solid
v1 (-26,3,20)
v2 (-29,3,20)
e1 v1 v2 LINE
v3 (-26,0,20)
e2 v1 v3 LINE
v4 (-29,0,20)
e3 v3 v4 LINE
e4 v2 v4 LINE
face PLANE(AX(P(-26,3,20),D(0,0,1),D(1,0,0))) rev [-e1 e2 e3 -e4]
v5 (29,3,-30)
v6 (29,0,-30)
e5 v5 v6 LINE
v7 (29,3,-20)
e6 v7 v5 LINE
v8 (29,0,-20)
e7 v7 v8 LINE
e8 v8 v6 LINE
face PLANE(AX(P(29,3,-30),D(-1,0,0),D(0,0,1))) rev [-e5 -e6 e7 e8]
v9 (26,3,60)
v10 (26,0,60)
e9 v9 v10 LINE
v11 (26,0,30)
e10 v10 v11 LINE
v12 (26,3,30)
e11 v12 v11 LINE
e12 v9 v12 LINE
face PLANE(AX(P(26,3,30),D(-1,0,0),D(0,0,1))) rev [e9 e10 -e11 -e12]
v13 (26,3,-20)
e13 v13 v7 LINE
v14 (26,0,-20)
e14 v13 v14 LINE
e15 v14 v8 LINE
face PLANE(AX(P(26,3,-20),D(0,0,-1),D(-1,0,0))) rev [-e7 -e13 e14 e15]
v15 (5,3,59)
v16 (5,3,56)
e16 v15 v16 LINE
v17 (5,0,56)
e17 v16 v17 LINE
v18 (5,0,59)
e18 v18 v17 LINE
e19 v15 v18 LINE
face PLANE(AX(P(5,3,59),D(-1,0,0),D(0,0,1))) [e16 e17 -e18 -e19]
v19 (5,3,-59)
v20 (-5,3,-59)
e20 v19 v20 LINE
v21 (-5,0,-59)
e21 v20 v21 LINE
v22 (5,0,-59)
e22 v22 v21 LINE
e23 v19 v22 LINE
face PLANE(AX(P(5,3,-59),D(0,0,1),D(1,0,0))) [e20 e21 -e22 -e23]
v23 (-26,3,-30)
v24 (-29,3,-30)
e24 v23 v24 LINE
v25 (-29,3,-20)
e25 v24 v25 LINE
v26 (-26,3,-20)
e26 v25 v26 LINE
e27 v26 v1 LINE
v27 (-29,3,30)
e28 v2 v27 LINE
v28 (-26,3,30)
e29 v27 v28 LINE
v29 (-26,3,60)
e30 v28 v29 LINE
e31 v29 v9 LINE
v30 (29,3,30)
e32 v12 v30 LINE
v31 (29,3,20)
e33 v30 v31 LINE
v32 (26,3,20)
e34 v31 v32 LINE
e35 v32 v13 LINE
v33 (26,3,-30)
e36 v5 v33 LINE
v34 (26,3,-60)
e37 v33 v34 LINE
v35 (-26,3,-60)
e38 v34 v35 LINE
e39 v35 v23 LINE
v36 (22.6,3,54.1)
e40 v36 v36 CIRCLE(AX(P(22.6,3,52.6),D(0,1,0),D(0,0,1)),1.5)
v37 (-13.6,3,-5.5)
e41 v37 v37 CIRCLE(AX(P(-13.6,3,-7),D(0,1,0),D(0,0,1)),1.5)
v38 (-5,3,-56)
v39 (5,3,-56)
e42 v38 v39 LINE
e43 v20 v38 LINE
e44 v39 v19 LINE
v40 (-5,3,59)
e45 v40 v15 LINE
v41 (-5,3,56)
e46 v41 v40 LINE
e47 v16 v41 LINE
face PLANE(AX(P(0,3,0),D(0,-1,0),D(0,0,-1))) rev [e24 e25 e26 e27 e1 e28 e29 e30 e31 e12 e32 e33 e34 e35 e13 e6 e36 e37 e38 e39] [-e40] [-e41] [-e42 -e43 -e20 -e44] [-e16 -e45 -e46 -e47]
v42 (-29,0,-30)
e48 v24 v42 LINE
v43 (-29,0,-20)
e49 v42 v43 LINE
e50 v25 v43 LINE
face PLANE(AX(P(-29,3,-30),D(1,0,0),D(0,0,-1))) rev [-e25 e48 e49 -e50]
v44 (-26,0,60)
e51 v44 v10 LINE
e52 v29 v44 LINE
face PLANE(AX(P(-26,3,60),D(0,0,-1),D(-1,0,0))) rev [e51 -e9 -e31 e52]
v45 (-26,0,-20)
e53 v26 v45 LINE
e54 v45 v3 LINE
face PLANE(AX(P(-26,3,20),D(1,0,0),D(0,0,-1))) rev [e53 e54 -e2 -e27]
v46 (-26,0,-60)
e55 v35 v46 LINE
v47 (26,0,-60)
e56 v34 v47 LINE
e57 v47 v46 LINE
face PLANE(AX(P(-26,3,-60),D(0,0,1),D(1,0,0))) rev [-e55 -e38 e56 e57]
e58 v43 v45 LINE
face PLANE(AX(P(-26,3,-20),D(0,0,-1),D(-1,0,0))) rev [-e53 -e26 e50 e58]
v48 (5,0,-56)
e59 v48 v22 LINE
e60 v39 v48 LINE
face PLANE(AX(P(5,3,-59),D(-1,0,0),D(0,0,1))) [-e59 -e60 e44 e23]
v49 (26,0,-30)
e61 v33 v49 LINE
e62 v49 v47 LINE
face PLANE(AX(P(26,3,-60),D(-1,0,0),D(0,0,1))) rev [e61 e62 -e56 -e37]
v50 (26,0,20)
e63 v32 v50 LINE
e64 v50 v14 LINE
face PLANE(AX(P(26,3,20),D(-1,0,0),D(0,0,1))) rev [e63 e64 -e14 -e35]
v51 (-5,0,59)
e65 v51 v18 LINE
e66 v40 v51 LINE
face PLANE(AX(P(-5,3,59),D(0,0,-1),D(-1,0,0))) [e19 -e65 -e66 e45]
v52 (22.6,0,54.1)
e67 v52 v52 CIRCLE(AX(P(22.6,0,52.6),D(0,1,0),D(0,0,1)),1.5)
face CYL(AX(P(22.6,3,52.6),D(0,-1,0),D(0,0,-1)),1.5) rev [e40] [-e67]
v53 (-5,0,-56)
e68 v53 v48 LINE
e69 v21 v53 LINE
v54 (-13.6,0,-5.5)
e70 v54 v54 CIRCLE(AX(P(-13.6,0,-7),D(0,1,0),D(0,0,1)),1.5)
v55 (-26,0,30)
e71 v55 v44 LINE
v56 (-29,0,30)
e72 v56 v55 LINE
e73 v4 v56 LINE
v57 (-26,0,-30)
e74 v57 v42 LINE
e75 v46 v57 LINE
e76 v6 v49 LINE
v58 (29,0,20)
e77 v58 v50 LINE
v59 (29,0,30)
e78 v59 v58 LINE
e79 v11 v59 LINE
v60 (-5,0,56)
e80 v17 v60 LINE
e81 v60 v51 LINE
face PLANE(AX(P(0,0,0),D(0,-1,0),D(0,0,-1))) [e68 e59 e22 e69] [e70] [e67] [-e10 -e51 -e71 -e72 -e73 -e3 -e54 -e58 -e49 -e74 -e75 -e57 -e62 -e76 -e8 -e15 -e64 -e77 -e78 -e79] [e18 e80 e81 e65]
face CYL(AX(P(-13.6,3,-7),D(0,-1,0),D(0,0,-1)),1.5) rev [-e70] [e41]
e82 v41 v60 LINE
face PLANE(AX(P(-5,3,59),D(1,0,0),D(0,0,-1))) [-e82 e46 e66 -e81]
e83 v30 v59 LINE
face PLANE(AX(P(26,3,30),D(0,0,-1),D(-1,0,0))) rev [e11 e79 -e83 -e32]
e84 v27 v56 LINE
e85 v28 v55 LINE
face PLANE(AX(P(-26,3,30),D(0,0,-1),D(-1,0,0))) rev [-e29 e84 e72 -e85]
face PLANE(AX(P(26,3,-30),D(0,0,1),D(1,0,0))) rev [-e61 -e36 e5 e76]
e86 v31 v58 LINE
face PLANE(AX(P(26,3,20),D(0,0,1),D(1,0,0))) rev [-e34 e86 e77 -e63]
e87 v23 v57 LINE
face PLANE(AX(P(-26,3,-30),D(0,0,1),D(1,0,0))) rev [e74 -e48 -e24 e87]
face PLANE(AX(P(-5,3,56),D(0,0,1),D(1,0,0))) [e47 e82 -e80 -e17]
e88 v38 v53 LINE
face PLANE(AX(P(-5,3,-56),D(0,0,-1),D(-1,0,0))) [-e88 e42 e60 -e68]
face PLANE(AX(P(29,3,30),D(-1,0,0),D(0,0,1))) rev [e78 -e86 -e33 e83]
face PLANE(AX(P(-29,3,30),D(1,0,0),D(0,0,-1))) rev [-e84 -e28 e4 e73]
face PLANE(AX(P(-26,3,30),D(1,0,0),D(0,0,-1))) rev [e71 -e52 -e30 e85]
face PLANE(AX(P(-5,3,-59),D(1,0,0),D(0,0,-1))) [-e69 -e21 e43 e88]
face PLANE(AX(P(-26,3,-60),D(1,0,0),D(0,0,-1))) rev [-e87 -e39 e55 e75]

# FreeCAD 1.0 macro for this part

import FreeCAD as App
import Part
import Sketcher
from FreeCAD import Vector
Q = App.Units.Quantity


def add_polygon(sketch, points):
    """Adds a closed chain of lines whose ends are joined by coincident constraints."""
    first, n = sketch.GeometryCount, len(points)
    for a, b in zip(points, points[1:] + points[:1]):
        sketch.addGeometry(Part.LineSegment(App.Vector(*a, 0), App.Vector(*b, 0)), False)
    for i in range(n):
        sketch.addConstraint(Sketcher.Constraint("Coincident", first + i, 2, first + (i + 1) % n, 1))

doc = App.newDocument("Part")
body = doc.addObject("PartDesign::Body", "Body")

# Sketch on XZ plane
sketch1 = doc.addObject("Sketcher::SketchObject", "Sketch")
body.addObject(sketch1)
sketch1.AttachmentSupport = (doc.XZ_Plane, [""])
sketch1.MapMode = "FlatFace"
add_polygon(sketch1, [(-26, 30), (-26, 60), (26, 60), (26, 30), (29, 30), (29, 20), (26, 20), (26, -20), (29, -20), (29, -30), (26, -30), (26, -60), (-26, -60), (-26, -30), (-29, -30), (-29, -20), (-26, -20), (-26, 20), (-29, 20), (-29, 30)])  # lines 0-19
add_polygon(sketch1, [(5, 59), (-5, 59), (-5, 56), (5, 56)])  # lines 20-23
sketch1.addGeometry(Part.Circle(Vector(22.6, 52.6, 0), Vector(0, 0, 1), 1.5), False)  # 24
sketch1.addGeometry(Part.Circle(Vector(-13.6, -7, 0), Vector(0, 0, 1), 1.5), False)  # 25
add_polygon(sketch1, [(5, -56), (-5, -56), (-5, -59), (5, -59)])  # lines 26-29
sketch1.addConstraint([
    Sketcher.Constraint("Vertical", 0),
    Sketcher.Constraint("Horizontal", 1),
    Sketcher.Constraint("Vertical", 2),
    Sketcher.Constraint("Horizontal", 3),
    Sketcher.Constraint("Vertical", 4),
    Sketcher.Constraint("Horizontal", 5),
    Sketcher.Constraint("Vertical", 6),
    Sketcher.Constraint("Horizontal", 7),
    Sketcher.Constraint("Vertical", 8),
    Sketcher.Constraint("Horizontal", 9),
    Sketcher.Constraint("Vertical", 10),
    Sketcher.Constraint("Horizontal", 11),
    Sketcher.Constraint("Vertical", 12),
    Sketcher.Constraint("Horizontal", 13),
    Sketcher.Constraint("Vertical", 14),
    Sketcher.Constraint("Horizontal", 15),
    Sketcher.Constraint("Vertical", 16),
    Sketcher.Constraint("Horizontal", 17),
    Sketcher.Constraint("Vertical", 18),
    Sketcher.Constraint("Horizontal", 19),
    Sketcher.Constraint("Horizontal", 20),
    Sketcher.Constraint("Vertical", 21),
    Sketcher.Constraint("Horizontal", 22),
    Sketcher.Constraint("Vertical", 23),
    Sketcher.Constraint("Horizontal", 26),
    Sketcher.Constraint("Vertical", 27),
    Sketcher.Constraint("Horizontal", 28),
    Sketcher.Constraint("Vertical", 29),
    Sketcher.Constraint("Equal", 24, 25),
    Sketcher.Constraint("Symmetric", 0, 2, 10, 2, -1, 1),
    Sketcher.Constraint("Symmetric", 2, 2, 12, 2, -1, 1),
    Sketcher.Constraint("Symmetric", 4, 2, 14, 2, -1, 1),
    Sketcher.Constraint("Symmetric", 6, 2, 16, 2, -1, 1),
    Sketcher.Constraint("Symmetric", 8, 2, 18, 2, -1, 1),
    Sketcher.Constraint("Symmetric", 22, 2, 26, 2, -1, 1),
    Sketcher.Constraint("Symmetric", 20, 2, 28, 2, -1, 1),
    Sketcher.Constraint("Symmetric", 9, 2, 12, 2, -2),
    Sketcher.Constraint("Symmetric", 7, 2, 14, 2, -2),
    Sketcher.Constraint("Vertical", 2, 2, 5, 2),
    Sketcher.Constraint("Vertical", 21, 2, 26, 2),
    Sketcher.Constraint("Equal", 28, 4),
    Sketcher.Constraint("Equal", 19, 21),
    Sketcher.Constraint("Diameter", 24, Q("3 mm")),
    Sketcher.Constraint("DistanceX", 1, 1, 1, 2, Q("52 mm")),
    Sketcher.Constraint("DistanceX", 3, 1, 3, 2, Q("3 mm")),
    Sketcher.Constraint("DistanceX", 20, 2, 20, 1, Q("10 mm")),
    Sketcher.Constraint("DistanceY", 0, 1, 0, 2, Q("30 mm")),
    Sketcher.Constraint("DistanceY", 6, 2, 6, 1, Q("40 mm")),
    Sketcher.Constraint("DistanceY", 25, 3, -1, 1, Q("7 mm")),
    Sketcher.Constraint("DistanceY", -1, 1, 20, 2, Q("59 mm")),
    Sketcher.Constraint("DistanceX", -1, 1, 24, 3, Q("22.6 mm")),
    Sketcher.Constraint("DistanceY", -1, 1, 24, 3, Q("52.6 mm")),
    Sketcher.Constraint("DistanceX", 25, 3, -1, 1, Q("13.6 mm")),
])
pad1 = doc.addObject("PartDesign::Pad", "Pad")
body.addObject(pad1)
pad1.Profile = sketch1
pad1.Length = 3
pad1.Reversed = True

doc.recompute()
